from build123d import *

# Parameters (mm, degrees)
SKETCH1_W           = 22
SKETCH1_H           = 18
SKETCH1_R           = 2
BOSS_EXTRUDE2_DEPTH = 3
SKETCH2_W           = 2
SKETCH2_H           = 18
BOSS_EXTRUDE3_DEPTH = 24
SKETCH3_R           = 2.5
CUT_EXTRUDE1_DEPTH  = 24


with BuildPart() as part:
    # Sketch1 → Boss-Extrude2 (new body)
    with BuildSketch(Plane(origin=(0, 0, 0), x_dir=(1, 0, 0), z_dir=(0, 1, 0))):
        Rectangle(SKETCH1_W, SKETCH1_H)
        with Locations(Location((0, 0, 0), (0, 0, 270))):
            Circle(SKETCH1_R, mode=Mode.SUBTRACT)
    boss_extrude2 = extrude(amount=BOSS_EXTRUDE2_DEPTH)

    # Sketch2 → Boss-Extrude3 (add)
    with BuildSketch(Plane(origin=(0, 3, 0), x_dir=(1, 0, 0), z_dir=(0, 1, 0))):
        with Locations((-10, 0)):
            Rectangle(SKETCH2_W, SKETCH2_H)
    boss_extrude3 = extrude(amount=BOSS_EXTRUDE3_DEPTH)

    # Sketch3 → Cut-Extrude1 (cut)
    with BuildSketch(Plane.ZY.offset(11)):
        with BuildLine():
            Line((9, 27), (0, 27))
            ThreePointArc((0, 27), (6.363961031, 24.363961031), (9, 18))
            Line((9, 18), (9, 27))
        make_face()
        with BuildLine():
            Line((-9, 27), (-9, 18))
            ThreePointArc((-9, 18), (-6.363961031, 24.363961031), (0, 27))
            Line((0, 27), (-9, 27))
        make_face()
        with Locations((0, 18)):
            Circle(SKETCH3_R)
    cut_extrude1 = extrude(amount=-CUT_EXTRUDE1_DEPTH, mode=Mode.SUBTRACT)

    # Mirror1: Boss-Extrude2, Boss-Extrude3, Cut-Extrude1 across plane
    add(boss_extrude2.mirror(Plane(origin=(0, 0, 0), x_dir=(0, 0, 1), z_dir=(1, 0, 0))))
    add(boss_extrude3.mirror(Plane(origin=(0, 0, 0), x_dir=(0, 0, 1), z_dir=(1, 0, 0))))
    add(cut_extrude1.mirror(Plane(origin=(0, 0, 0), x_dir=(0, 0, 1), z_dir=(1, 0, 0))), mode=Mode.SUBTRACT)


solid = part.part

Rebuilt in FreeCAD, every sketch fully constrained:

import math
import FreeCAD as App
import Part
import Sketcher

V = App.Vector

doc = App.newDocument("Part")
body = doc.addObject("PartDesign::Body", "Body")

# Sketch on XZ plane
sketch1 = body.newObject("Sketcher::SketchObject", "Sketch")
sketch1.AttachmentSupport = (doc.getObject("XZ_Plane"), [""])
sketch1.MapMode = "FlatFace"
sketch1.addGeometry([
    Part.LineSegment(V(-11, -9, 0), V(-11, 9, 0)),  # 0
    Part.LineSegment(V(-11, 9, 0), V(11, 9, 0)),  # 1
    Part.LineSegment(V(11, 9, 0), V(11, -9, 0)),  # 2
    Part.LineSegment(V(11, -9, 0), V(-11, -9, 0)),  # 3
    Part.Circle(V(0, 0, 0), V(0, 0, 1), 2),  # 4
], False)
sketch1.addConstraint([
    Sketcher.Constraint("Coincident", 0, 2, 1, 1),
    Sketcher.Constraint("Coincident", 1, 2, 2, 1),
    Sketcher.Constraint("Coincident", 2, 2, 3, 1),
    Sketcher.Constraint("Coincident", 3, 2, 0, 1),
    Sketcher.Constraint("Vertical", 0),
    Sketcher.Constraint("Horizontal", 1),
    Sketcher.Constraint("Vertical", 2),
    Sketcher.Constraint("Horizontal", 3),
    Sketcher.Constraint("Coincident", 4, 3, -1, 1),
    Sketcher.Constraint("Symmetric", 0, 2, 2, 2, -1, 1),
    Sketcher.Constraint("Diameter", 4, 4.0),
    Sketcher.Constraint("DistanceX", 1, 1, 1, 2, 22.0),
    Sketcher.Constraint("DistanceY", 0, 1, 0, 2, 18.0),
])
pad1 = body.newObject("PartDesign::Pad", "Pad")
pad1.Profile = sketch1
pad1.Length = 3
pad1.Reversed = True

# Sketch on XZ plane
sketch2 = body.newObject("Sketcher::SketchObject", "Sketch001")
sketch2.AttachmentSupport = (doc.getObject("XZ_Plane"), [""])
sketch2.MapMode = "FlatFace"
sketch2.AttachmentOffset = App.Placement(V(0, 0, -3), App.Rotation())
sketch2.addGeometry([
    Part.LineSegment(V(-11, -9, 0), V(-11, 9, 0)),
    Part.LineSegment(V(-11, 9, 0), V(-9, 9, 0)),
    Part.LineSegment(V(-9, 9, 0), V(-9, -9, 0)),
    Part.LineSegment(V(-9, -9, 0), V(-11, -9, 0)),
], False)
sketch2.addConstraint([
    Sketcher.Constraint("Coincident", 0, 2, 1, 1),
    Sketcher.Constraint("Coincident", 1, 2, 2, 1),
    Sketcher.Constraint("Coincident", 2, 2, 3, 1),
    Sketcher.Constraint("Coincident", 3, 2, 0, 1),
    Sketcher.Constraint("Vertical", 0),
    Sketcher.Constraint("Horizontal", 1),
    Sketcher.Constraint("Vertical", 2),
    Sketcher.Constraint("Horizontal", 3),
    Sketcher.Constraint("DistanceX", 1, 1, 1, 2, 2.0),
    Sketcher.Constraint("DistanceY", 0, 1, 0, 2, 18.0),
    Sketcher.Constraint("DistanceX", 0, 2, -1, 1, 11.0),
    Sketcher.Constraint("DistanceY", -1, 1, 0, 2, 9.0),
])
pad2 = body.newObject("PartDesign::Pad", "Pad001")
pad2.Profile = sketch2
pad2.Length = 24
pad2.Reversed = True

# Sketch on YZ plane
sketch3 = body.newObject("Sketcher::SketchObject", "Sketch002")
sketch3.AttachmentSupport = (doc.getObject("YZ_Plane"), [""])
sketch3.MapMode = "FlatFace"
sketch3.AttachmentOffset = App.Placement(V(0, 0, -11), App.Rotation())
sketch3.addGeometry([
    Part.LineSegment(V(27, 9, 0), V(27, 0, 0)),  # 0
    Part.ArcOfCircle(Part.Circle(V(18, 0, 0), V(0, 0, 1), 9), math.radians(0), math.radians(90)),  # 1
    Part.LineSegment(V(18, 9, 0), V(27, 9, 0)),  # 2
    Part.LineSegment(V(27, -9, 0), V(18, -9, 0)),  # 3
    Part.ArcOfCircle(Part.Circle(V(18, 0, 0), V(0, 0, 1), 9), math.radians(-90), math.radians(0)),  # 4
    Part.LineSegment(V(27, 0, 0), V(27, -9, 0)),  # 5
    Part.Circle(V(18, 0, 0), V(0, 0, 1), 2.5),  # 6
], False)
sketch3.addConstraint([
    Sketcher.Constraint("Tangent", 0, 2, 1, 1),
    Sketcher.Constraint("Tangent", 1, 2, 2, 1),
    Sketcher.Constraint("Coincident", 2, 2, 0, 1),
    Sketcher.Constraint("Tangent", 3, 2, 4, 1),
    Sketcher.Constraint("Tangent", 4, 2, 5, 1),
    Sketcher.Constraint("Coincident", 5, 2, 3, 1),
    Sketcher.Constraint("Vertical", 0),
    Sketcher.Constraint("Horizontal", 2),
    Sketcher.Constraint("Horizontal", 3),
    Sketcher.Constraint("Vertical", 5),
    Sketcher.Constraint("Coincident", 4, 3, 1, 3),
    Sketcher.Constraint("Coincident", 6, 3, 1, 3),
    Sketcher.Constraint("Equal", 1, 4),
    Sketcher.Constraint("PointOnObject", 1, 3, -1),
    Sketcher.Constraint("Diameter", 6, 5.0),
    Sketcher.Constraint("Radius", 1, 9.0),
    Sketcher.Constraint("DistanceX", -1, 1, 1, 3, 18.0),
])
pocket1 = body.newObject("PartDesign::Pocket", "Pocket")
pocket1.Profile = sketch3
pocket1.Length = 24
pocket1.Reversed = True
doc.recompute()

mirrored = body.newObject("PartDesign::Mirrored", "Mirrored")
mirrored.Originals = [pad1, pad2, pocket1]
mirrored.MirrorPlane = (doc.getObject("YZ_Plane"), [""])
body.Tip = mirrored

doc.recompute()
